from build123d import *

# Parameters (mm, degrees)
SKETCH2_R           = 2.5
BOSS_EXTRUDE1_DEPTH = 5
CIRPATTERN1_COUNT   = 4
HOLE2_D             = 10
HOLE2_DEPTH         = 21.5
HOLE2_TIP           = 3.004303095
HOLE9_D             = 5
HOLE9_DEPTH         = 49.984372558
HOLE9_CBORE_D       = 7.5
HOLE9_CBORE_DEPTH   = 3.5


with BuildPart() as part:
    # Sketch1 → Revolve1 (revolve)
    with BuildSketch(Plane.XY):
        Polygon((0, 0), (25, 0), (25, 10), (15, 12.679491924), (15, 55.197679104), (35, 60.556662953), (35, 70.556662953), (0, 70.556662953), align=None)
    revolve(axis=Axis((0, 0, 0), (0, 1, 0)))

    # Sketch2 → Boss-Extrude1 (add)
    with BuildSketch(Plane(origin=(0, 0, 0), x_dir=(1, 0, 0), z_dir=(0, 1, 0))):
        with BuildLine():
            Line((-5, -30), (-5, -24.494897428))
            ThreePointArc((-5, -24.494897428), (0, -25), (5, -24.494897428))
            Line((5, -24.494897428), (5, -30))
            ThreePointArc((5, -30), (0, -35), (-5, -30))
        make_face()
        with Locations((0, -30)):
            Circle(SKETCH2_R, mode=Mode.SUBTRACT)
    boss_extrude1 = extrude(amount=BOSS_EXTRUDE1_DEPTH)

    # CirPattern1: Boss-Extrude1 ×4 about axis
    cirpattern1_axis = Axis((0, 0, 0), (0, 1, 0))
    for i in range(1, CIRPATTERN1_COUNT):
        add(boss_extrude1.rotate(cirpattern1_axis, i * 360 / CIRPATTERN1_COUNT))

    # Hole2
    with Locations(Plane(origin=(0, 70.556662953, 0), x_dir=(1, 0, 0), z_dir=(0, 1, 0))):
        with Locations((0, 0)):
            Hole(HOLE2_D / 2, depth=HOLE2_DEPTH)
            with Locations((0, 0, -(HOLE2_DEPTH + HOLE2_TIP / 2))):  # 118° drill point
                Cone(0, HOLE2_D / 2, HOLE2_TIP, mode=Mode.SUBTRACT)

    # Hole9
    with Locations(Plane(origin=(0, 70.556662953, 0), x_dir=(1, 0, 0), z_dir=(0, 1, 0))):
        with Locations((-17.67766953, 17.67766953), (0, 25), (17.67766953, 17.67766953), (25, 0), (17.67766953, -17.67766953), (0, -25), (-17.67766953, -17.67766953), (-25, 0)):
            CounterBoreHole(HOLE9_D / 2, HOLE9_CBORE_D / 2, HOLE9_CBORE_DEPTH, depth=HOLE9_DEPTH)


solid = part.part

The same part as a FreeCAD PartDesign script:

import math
import FreeCAD as App
import Part
import Sketcher
from FreeCAD import Vector
Q = App.Units.Quantity

doc = App.newDocument("Part")
body = doc.addObject("PartDesign::Body", "Body")

sketch1 = body.newObject("Sketcher::SketchObject", "Sketch")
sketch1.AttachmentSupport = (doc.getObject("XY_Plane"), [""])
sketch1.MapMode = "FlatFace"
sketch1.addGeometry(Part.LineSegment(Vector(0, 0, 0), Vector(25, 0, 0)), False)
sketch1.addGeometry(Part.LineSegment(Vector(25, 0, 0), Vector(25, 10, 0)), False)
sketch1.addGeometry(Part.LineSegment(Vector(25, 10, 0), Vector(15, 12.679492, 0)), False)
sketch1.addGeometry(Part.LineSegment(Vector(15, 12.679492, 0), Vector(15, 55.197679, 0)), False)
sketch1.addGeometry(Part.LineSegment(Vector(15, 55.197679, 0), Vector(35, 60.556663, 0)), False)
sketch1.addGeometry(Part.LineSegment(Vector(35, 60.556663, 0), Vector(35, 70.556663, 0)), False)
sketch1.addGeometry(Part.LineSegment(Vector(35, 70.556663, 0), Vector(0, 70.556663, 0)), False)
sketch1.addGeometry(Part.LineSegment(Vector(0, 70.556663, 0), Vector(0, 0, 0)), False)
sketch1.addConstraint(Sketcher.Constraint("Coincident", 0, 2, 1, 1))
sketch1.addConstraint(Sketcher.Constraint("Coincident", 1, 2, 2, 1))
sketch1.addConstraint(Sketcher.Constraint("Coincident", 2, 2, 3, 1))
sketch1.addConstraint(Sketcher.Constraint("Coincident", 3, 2, 4, 1))
sketch1.addConstraint(Sketcher.Constraint("Coincident", 4, 2, 5, 1))
sketch1.addConstraint(Sketcher.Constraint("Coincident", 5, 2, 6, 1))
sketch1.addConstraint(Sketcher.Constraint("Coincident", 6, 2, 7, 1))
sketch1.addConstraint(Sketcher.Constraint("Coincident", 7, 2, 0, 1))
sketch1.addConstraint(Sketcher.Constraint("Horizontal", 0))
sketch1.addConstraint(Sketcher.Constraint("Vertical", 1))
sketch1.addConstraint(Sketcher.Constraint("Vertical", 3))
sketch1.addConstraint(Sketcher.Constraint("Vertical", 5))
sketch1.addConstraint(Sketcher.Constraint("Horizontal", 6))
sketch1.addConstraint(Sketcher.Constraint("Vertical", 7))
sketch1.addConstraint(Sketcher.Constraint("Coincident", 7, 2, -1, 1))
sketch1.addConstraint(Sketcher.Constraint("Equal", 1, 5))
sketch1.addConstraint(Sketcher.Constraint("DistanceX", 0, 1, 0, 2, Q("25 mm")))
sketch1.addConstraint(Sketcher.Constraint("DistanceX", 6, 2, 6, 1, Q("35 mm")))
sketch1.addConstraint(Sketcher.Constraint("DistanceY", 1, 1, 1, 2, Q("10 mm")))
sketch1.addConstraint(Sketcher.Constraint("Angle", 2, Q("165 deg")))
sketch1.addConstraint(Sketcher.Constraint("Angle", 4, Q("15 deg")))
sketch1.addConstraint(Sketcher.Constraint("DistanceX", -1, 1, 2, 2, Q("15 mm")))
sketch1.addConstraint(Sketcher.Constraint("DistanceY", 3, 1, 3, 2, Q("42.518187 mm")))
revolution = body.newObject("PartDesign::Revolution", "Revolution")
revolution.Profile = sketch1
revolution.ReferenceAxis = (sketch1, ["V_Axis"])
revolution.Angle = 360

sketch2 = body.newObject("Sketcher::SketchObject", "Sketch001")
sketch2.AttachmentSupport = (doc.getObject("XZ_Plane"), [""])
sketch2.MapMode = "FlatFace"
sketch2.addGeometry(Part.LineSegment(Vector(-5, 24.494897, 0), Vector(-5, 30, 0)), False)
sketch2.addGeometry(Part.ArcOfCircle(Part.Circle(Vector(0, 30, 0), Vector(0, 0, 1), 5), math.radians(0), math.radians(180)), False)
sketch2.addGeometry(Part.LineSegment(Vector(5, 30, 0), Vector(5, 24.494897, 0)), False)
sketch2.addGeometry(Part.ArcOfCircle(Part.Circle(Vector(0, 0, 0), Vector(0, 0, 1), 25), math.radians(78.463041), math.radians(101.536959)), False)
sketch2.addGeometry(Part.Circle(Vector(0, 30, 0), Vector(0, 0, 1), 2.5), False)
sketch2.addConstraint(Sketcher.Constraint("Tangent", 0, 2, 1, 2))
sketch2.addConstraint(Sketcher.Constraint("Tangent", 1, 1, 2, 1))
sketch2.addConstraint(Sketcher.Constraint("Coincident", 2, 2, 3, 1))
sketch2.addConstraint(Sketcher.Constraint("Coincident", 3, 2, 0, 1))
sketch2.addConstraint(Sketcher.Constraint("Vertical", 0))
sketch2.addConstraint(Sketcher.Constraint("Vertical", 2))
sketch2.addConstraint(Sketcher.Constraint("Coincident", 3, 3, -1, 1))
sketch2.addConstraint(Sketcher.Constraint("Coincident", 4, 3, 1, 3))
sketch2.addConstraint(Sketcher.Constraint("PointOnObject", 1, 3, -2))
sketch2.addConstraint(Sketcher.Constraint("Diameter", 4, Q("5 mm")))
sketch2.addConstraint(Sketcher.Constraint("Radius", 1, Q("5 mm")))
sketch2.addConstraint(Sketcher.Constraint("Radius", 3, Q("25 mm")))
sketch2.addConstraint(Sketcher.Constraint("DistanceY", -1, 1, 1, 3, Q("30 mm")))
pad1 = body.newObject("PartDesign::Pad", "Pad")
pad1.Profile = sketch2
pad1.Length = 5
pad1.Reversed = True
doc.recompute()

polarpattern = body.newObject("PartDesign::PolarPattern", "PolarPattern")
polarpattern.Originals = [pad1]
polarpattern.Axis = (doc.getObject("Y_Axis"), [""])
polarpattern.Angle = 360
polarpattern.Occurrences = 4
body.Tip = polarpattern

sketch3 = body.newObject("Sketcher::SketchObject", "Sketch002")
sketch3.AttachmentSupport = (doc.getObject("XZ_Plane"), [""])
sketch3.MapMode = "FlatFace"
sketch3.AttachmentOffset = App.Placement(Vector(0, 0, -70.556663), App.Rotation())
sketch3.addGeometry(Part.Circle(Vector(0, 0, 0), Vector(0, 0, 1), 5), False)
sketch3.addConstraint(Sketcher.Constraint("Coincident", 0, 3, -1, 1))
sketch3.addConstraint(Sketcher.Constraint("Diameter", 0, Q("10 mm")))
doc.recompute()
hole = body.newObject("PartDesign::Hole", "Hole")
hole.Profile = sketch3
hole.ThreadType = "None"
hole.Diameter = 10
hole.DepthType = "Dimension"
hole.Depth = 21.5
hole.DrillPoint = "Angled"
hole.DrillPointAngle = 118
hole.Reversed = True

sketch4 = body.newObject("Sketcher::SketchObject", "Sketch003")
sketch4.AttachmentSupport = (doc.getObject("XZ_Plane"), [""])
sketch4.MapMode = "FlatFace"
sketch4.AttachmentOffset = App.Placement(Vector(0, 0, -70.556663), App.Rotation())
sketch4.addGeometry(Part.Circle(Vector(-17.67767, -17.67767, 0), Vector(0, 0, 1), 2.5), False)
sketch4.addGeometry(Part.Circle(Vector(0, -25, 0), Vector(0, 0, 1), 2.5), False)
sketch4.addGeometry(Part.Circle(Vector(17.67767, -17.67767, 0), Vector(0, 0, 1), 2.5), False)
sketch4.addGeometry(Part.Circle(Vector(25, 0, 0), Vector(0, 0, 1), 2.5), False)
sketch4.addGeometry(Part.Circle(Vector(17.67767, 17.67767, 0), Vector(0, 0, 1), 2.5), False)
sketch4.addGeometry(Part.Circle(Vector(0, 25, 0), Vector(0, 0, 1), 2.5), False)
sketch4.addGeometry(Part.Circle(Vector(-17.67767, 17.67767, 0), Vector(0, 0, 1), 2.5), False)
sketch4.addGeometry(Part.Circle(Vector(-25, 0, 0), Vector(0, 0, 1), 2.5), False)
sketch4.addConstraint(Sketcher.Constraint("Equal", 0, 1))
sketch4.addConstraint(Sketcher.Constraint("Equal", 1, 2))
sketch4.addConstraint(Sketcher.Constraint("Equal", 2, 3))
sketch4.addConstraint(Sketcher.Constraint("Equal", 3, 4))
sketch4.addConstraint(Sketcher.Constraint("Equal", 4, 5))
sketch4.addConstraint(Sketcher.Constraint("Equal", 5, 6))
sketch4.addConstraint(Sketcher.Constraint("Equal", 6, 7))
sketch4.addConstraint(Sketcher.Constraint("Symmetric", 0, 3, 4, 3, -1, 1))
sketch4.addConstraint(Sketcher.Constraint("Symmetric", 1, 3, 5, 3, -1, 1))
sketch4.addConstraint(Sketcher.Constraint("Symmetric", 2, 3, 6, 3, -1, 1))
sketch4.addConstraint(Sketcher.Constraint("Symmetric", 3, 3, 7, 3, -1, 1))
sketch4.addConstraint(Sketcher.Constraint("Symmetric", 0, 3, 2, 3, -2))
sketch4.addConstraint(Sketcher.Constraint("PointOnObject", 1, 3, -2))
sketch4.addConstraint(Sketcher.Constraint("PointOnObject", 3, 3, -1))
sketch4.addConstraint(Sketcher.Constraint("Diameter", 0, Q("5 mm")))
sketch4.addConstraint(Sketcher.Constraint("DistanceY", 1, 3, -1, 1, Q("25 mm")))
sketch4.addConstraint(Sketcher.Constraint("DistanceX", -1, 1, 3, 3, Q("25 mm")))
sketch4.addConstraint(Sketcher.Constraint("DistanceX", 0, 3, -1, 1, Q("17.67767 mm")))
sketch4.addConstraint(Sketcher.Constraint("DistanceY", 0, 3, -1, 1, Q("17.67767 mm")))
doc.recompute()
hole2 = body.newObject("PartDesign::Hole", "Hole001")
hole2.Profile = sketch4
hole2.ThreadType = "None"
hole2.Diameter = 5
hole2.DepthType = "Dimension"
hole2.Depth = 49.984373
hole2.DrillPoint = "Flat"
hole2.HoleCutType = "Counterbore"
hole2.HoleCutDiameter = 7.5
hole2.HoleCutDepth = 3.5
hole2.Reversed = True

doc.recompute()
